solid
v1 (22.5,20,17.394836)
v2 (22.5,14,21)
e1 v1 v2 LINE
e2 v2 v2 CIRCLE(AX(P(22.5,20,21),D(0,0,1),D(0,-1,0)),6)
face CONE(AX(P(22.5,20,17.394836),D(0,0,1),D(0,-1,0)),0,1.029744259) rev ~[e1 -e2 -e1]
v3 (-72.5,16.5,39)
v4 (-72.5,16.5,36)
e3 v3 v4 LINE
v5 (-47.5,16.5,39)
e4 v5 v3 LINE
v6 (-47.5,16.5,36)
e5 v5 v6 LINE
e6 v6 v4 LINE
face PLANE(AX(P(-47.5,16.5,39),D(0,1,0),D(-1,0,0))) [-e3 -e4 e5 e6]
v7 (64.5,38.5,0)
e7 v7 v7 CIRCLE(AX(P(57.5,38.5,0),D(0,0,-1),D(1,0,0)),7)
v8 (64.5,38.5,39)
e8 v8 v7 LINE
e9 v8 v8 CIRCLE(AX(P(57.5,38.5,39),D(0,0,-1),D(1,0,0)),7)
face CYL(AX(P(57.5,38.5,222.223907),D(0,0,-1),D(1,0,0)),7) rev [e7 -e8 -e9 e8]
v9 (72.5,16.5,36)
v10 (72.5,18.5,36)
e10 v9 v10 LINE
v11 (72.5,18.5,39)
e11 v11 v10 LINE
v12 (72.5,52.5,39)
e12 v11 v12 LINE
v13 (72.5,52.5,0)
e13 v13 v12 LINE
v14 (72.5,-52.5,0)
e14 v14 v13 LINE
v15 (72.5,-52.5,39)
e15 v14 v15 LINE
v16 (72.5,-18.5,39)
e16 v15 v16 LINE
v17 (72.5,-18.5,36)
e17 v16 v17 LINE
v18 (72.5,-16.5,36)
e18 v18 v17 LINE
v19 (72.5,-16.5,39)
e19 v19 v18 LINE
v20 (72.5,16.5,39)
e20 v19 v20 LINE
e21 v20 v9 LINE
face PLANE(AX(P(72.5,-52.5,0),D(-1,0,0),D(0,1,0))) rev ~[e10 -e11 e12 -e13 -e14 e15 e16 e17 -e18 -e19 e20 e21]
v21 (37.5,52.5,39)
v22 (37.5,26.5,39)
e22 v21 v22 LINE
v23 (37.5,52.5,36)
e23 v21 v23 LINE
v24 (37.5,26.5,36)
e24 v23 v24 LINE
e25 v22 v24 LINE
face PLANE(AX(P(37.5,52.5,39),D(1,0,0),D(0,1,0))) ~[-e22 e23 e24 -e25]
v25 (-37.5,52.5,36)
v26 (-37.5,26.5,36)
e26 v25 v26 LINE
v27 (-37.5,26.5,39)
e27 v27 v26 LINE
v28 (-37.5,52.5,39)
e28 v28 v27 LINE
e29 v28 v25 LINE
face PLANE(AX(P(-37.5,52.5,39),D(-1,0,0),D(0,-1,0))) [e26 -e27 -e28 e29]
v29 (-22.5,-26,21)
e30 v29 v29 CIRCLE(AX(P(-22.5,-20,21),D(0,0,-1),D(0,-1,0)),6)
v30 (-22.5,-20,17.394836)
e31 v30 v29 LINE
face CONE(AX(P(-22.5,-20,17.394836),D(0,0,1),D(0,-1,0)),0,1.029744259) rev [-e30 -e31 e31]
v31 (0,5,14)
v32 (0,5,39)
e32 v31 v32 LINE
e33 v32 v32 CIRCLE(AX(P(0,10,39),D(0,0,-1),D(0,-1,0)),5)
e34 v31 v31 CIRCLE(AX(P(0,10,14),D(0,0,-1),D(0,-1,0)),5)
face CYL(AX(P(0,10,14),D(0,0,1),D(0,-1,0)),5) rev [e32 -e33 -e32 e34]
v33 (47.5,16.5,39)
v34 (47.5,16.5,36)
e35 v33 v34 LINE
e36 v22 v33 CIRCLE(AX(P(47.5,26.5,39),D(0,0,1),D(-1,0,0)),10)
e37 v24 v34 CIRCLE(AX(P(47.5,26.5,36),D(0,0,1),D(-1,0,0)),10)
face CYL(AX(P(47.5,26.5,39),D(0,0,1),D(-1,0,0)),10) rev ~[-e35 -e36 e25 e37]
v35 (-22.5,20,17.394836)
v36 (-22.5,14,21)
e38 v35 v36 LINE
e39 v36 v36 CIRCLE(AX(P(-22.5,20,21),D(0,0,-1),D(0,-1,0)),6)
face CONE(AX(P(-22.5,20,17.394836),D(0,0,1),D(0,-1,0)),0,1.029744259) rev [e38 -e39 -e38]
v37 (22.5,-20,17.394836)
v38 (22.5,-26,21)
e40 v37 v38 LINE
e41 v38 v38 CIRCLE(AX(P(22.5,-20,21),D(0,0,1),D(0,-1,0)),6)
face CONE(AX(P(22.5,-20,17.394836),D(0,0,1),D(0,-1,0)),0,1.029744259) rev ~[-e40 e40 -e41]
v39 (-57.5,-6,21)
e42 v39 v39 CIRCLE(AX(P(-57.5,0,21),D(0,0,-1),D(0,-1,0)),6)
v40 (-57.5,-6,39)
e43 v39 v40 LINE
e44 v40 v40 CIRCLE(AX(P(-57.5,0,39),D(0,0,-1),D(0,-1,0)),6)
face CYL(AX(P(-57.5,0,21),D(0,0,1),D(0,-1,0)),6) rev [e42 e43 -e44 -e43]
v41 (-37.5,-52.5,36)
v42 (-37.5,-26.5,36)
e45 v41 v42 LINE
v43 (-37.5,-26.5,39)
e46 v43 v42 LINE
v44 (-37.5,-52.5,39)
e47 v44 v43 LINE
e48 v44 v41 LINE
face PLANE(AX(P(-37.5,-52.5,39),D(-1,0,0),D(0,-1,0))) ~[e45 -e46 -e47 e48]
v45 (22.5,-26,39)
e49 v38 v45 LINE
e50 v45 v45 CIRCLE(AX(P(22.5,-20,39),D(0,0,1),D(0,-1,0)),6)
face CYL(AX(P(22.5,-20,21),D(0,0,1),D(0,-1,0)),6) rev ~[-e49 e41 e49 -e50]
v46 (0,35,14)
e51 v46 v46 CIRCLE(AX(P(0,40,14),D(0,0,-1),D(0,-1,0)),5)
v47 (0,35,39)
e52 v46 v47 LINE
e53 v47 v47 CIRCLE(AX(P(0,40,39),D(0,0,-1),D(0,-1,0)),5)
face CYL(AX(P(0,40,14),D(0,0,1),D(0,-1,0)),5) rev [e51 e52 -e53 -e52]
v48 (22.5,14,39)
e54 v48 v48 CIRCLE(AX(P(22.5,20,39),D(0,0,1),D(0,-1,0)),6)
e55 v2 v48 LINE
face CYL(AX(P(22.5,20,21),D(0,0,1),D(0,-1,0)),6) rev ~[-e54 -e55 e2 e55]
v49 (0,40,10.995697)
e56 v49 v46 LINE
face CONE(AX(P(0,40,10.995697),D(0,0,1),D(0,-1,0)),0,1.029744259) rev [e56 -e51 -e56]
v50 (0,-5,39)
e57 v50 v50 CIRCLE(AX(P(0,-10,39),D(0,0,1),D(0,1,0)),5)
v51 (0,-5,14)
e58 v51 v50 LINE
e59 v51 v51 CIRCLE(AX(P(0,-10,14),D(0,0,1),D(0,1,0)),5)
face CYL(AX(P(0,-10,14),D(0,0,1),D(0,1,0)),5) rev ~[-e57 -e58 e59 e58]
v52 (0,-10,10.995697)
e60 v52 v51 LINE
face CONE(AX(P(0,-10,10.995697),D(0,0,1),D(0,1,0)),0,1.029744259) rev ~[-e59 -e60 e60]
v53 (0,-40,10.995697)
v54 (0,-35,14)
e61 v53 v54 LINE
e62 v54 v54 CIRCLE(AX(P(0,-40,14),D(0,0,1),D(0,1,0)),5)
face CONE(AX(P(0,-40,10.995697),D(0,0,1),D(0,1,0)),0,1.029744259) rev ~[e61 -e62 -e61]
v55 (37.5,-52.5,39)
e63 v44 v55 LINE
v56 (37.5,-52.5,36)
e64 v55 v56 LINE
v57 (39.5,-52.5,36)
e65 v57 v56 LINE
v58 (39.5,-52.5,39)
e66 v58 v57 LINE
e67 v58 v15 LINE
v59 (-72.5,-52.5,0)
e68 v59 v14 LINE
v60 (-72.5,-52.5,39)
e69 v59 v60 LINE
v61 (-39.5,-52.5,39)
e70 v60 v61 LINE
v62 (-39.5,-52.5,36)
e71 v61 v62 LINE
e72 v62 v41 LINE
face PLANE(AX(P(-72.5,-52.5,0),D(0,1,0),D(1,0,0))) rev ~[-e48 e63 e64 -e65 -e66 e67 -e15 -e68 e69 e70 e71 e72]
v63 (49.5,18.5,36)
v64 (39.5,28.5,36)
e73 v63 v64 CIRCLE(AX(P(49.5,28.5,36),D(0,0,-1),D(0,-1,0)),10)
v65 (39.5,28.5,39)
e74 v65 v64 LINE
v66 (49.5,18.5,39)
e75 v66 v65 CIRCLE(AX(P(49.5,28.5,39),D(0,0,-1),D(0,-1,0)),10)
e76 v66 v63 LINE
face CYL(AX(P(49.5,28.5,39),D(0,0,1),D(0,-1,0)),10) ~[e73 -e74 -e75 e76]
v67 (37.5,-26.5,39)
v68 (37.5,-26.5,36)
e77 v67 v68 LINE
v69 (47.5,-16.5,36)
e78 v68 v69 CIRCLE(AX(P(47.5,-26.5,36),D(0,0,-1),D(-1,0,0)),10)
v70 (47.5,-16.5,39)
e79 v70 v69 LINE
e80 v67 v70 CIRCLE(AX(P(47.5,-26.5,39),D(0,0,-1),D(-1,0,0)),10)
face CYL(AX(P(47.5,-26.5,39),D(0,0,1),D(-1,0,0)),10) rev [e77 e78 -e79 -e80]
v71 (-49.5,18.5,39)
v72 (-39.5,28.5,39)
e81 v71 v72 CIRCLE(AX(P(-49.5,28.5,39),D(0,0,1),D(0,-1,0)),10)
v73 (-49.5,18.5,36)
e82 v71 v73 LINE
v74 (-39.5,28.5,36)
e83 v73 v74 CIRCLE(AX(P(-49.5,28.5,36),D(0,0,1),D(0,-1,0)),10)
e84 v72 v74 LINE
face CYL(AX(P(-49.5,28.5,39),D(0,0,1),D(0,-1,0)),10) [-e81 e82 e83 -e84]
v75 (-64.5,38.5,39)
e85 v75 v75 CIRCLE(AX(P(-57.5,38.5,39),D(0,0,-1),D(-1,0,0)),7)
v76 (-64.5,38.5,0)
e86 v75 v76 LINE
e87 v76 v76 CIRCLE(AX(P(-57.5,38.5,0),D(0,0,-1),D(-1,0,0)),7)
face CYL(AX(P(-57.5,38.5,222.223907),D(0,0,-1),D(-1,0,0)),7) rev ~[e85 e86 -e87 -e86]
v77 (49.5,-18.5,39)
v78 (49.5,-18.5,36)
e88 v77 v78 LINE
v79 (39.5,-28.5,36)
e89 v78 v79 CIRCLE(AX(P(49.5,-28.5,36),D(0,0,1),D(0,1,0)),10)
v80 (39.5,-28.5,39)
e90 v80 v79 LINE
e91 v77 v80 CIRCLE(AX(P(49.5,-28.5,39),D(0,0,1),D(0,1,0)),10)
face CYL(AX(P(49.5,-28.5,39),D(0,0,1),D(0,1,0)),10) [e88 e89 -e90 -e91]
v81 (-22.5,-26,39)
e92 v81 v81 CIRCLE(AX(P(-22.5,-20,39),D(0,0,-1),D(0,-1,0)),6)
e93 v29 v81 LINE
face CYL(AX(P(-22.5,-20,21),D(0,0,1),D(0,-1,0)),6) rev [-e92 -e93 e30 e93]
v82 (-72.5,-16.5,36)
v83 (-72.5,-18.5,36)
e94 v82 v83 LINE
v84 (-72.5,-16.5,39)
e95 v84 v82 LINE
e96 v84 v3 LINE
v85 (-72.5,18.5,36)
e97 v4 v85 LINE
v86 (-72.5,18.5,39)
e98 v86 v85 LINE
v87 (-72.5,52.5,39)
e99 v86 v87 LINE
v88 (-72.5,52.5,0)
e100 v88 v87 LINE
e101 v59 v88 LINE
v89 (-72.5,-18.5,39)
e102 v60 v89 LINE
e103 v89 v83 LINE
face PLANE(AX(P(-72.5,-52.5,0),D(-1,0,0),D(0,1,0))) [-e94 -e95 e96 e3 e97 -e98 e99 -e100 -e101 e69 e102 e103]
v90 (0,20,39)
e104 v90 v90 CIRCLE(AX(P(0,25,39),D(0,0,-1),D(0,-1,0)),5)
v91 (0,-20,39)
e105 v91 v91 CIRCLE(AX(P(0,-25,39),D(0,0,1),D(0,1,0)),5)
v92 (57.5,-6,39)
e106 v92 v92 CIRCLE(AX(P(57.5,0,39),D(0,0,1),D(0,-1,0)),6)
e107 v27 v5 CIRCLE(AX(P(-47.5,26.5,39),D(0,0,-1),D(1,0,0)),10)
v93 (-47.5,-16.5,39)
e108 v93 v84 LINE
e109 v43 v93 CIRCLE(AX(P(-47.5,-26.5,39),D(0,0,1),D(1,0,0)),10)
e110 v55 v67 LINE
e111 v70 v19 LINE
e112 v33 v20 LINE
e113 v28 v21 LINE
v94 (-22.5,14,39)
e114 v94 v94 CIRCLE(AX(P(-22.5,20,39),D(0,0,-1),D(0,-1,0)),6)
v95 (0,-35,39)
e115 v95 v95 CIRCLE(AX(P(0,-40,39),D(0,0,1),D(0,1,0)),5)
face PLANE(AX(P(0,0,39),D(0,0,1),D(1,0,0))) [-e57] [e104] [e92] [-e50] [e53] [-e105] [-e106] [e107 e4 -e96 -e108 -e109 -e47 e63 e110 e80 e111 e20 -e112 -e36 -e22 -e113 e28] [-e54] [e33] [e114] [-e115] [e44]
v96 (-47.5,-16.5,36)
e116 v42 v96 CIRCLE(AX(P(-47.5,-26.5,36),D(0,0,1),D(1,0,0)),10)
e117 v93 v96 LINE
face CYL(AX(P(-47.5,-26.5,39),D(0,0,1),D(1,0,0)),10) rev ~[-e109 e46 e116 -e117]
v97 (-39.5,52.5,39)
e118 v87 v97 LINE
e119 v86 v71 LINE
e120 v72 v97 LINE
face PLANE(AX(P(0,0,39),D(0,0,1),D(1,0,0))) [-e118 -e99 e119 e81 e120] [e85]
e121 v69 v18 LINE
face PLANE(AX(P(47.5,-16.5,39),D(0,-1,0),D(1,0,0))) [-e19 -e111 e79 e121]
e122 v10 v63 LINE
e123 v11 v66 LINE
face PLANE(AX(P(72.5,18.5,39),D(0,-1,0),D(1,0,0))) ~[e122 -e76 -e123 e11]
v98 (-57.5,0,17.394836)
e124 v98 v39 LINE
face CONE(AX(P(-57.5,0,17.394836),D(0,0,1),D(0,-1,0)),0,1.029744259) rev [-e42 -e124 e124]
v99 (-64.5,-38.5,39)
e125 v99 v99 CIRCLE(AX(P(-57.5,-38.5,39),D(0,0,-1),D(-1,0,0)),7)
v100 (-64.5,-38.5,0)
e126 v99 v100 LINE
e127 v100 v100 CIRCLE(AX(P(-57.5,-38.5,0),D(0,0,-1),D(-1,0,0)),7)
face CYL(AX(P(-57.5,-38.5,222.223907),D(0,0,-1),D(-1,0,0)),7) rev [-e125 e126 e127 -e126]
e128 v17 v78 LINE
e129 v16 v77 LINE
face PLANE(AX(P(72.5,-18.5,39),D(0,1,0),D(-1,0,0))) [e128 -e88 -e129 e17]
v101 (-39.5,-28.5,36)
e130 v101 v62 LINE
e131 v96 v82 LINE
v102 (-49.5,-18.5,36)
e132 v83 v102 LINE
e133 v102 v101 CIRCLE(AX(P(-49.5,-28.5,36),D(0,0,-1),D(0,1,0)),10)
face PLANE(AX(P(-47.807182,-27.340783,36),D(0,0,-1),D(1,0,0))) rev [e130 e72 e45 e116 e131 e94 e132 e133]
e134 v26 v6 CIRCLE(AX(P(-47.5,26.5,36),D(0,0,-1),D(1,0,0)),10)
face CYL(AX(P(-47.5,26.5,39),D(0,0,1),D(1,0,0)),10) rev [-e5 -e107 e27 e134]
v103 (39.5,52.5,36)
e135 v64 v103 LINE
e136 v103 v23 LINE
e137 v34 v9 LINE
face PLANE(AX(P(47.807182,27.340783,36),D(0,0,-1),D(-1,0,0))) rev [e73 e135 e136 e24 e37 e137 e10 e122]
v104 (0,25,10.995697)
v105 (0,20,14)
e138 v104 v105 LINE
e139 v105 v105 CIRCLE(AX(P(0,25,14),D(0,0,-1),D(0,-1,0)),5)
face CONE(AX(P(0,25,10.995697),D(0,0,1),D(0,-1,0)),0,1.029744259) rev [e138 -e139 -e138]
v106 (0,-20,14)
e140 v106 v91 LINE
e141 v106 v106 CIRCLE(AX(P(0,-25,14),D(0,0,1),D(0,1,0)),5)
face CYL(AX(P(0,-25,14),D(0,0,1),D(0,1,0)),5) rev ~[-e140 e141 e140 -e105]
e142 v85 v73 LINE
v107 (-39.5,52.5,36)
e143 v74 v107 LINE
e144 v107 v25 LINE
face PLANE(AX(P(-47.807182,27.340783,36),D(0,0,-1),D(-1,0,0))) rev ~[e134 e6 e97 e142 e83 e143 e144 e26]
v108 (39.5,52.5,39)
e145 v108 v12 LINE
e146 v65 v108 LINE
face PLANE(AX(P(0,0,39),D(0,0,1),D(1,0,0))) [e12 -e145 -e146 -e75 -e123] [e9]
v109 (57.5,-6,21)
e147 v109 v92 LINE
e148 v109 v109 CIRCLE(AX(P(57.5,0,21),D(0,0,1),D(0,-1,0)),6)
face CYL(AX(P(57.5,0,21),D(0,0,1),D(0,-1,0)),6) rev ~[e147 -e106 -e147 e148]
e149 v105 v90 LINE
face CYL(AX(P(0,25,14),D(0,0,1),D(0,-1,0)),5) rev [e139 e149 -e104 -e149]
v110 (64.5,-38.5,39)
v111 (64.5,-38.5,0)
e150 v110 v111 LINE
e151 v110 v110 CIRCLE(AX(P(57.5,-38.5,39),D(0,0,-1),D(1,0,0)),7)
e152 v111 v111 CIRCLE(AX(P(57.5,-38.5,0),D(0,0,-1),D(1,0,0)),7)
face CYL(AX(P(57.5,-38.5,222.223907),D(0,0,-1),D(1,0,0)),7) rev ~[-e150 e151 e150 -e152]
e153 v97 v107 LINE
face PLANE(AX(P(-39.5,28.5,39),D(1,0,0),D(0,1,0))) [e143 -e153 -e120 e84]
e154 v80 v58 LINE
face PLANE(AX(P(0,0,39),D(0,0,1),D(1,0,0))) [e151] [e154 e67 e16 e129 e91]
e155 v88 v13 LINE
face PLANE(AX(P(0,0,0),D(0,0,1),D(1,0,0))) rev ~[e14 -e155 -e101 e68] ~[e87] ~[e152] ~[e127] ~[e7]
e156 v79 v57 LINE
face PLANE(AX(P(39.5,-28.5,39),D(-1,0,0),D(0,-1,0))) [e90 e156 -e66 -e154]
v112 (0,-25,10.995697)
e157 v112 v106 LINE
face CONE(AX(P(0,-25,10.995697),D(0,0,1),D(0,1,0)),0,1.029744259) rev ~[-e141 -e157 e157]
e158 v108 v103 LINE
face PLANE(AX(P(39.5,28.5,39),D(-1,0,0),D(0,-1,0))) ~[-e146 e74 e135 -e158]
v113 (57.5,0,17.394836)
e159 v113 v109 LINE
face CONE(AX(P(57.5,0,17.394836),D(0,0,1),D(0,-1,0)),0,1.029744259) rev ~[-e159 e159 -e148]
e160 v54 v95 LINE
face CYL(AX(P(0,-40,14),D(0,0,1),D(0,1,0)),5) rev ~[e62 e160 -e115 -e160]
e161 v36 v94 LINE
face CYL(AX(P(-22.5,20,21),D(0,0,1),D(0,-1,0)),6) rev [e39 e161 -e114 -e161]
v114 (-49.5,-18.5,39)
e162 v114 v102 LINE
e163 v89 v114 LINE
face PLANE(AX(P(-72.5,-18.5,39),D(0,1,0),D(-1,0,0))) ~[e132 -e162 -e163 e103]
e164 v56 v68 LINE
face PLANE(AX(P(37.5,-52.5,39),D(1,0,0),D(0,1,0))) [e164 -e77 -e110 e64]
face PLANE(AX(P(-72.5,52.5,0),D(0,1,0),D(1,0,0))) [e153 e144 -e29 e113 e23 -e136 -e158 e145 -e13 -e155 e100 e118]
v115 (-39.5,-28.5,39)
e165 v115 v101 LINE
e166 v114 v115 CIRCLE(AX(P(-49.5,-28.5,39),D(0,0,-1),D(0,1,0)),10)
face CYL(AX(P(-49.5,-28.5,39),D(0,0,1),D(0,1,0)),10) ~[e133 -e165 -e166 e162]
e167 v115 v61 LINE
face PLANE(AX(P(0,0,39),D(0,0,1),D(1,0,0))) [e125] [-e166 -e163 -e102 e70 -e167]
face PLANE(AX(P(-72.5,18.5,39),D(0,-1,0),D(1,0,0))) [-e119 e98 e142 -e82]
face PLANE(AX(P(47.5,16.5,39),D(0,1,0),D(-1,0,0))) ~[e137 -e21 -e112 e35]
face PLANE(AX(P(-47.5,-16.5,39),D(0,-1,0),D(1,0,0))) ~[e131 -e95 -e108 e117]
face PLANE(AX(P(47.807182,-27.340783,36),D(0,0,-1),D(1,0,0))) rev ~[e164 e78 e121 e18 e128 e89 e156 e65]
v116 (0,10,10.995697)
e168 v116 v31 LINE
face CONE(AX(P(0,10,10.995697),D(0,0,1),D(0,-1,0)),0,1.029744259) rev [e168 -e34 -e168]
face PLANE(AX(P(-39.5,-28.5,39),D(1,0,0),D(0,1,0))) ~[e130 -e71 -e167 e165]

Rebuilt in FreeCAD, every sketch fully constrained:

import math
import FreeCAD as App
import Part
import Sketcher
from FreeCAD import Vector
Q = App.Units.Quantity

doc = App.newDocument("Part")
body = doc.addObject("PartDesign::Body", "Body")

# Sketch on XY plane
sketch1 = body.newObject("Sketcher::SketchObject", "Sketch")
sketch1.AttachmentSupport = (doc.getObject("XY_Plane"), [""])
sketch1.MapMode = "FlatFace"
sketch1.addGeometry(Part.LineSegment(Vector(-72, 52, 0), Vector(-72, -52, 0)), False)
sketch1.addGeometry(Part.LineSegment(Vector(-72, -52, 0), Vector(72, -52, 0)), False)
sketch1.addGeometry(Part.LineSegment(Vector(72, -52, 0), Vector(72, 52, 0)), False)
sketch1.addGeometry(Part.LineSegment(Vector(72, 52, 0), Vector(-72, 52, 0)), False)
sketch1.addConstraint(Sketcher.Constraint("Coincident", 0, 2, 1, 1))
sketch1.addConstraint(Sketcher.Constraint("Coincident", 1, 2, 2, 1))
sketch1.addConstraint(Sketcher.Constraint("Coincident", 2, 2, 3, 1))
sketch1.addConstraint(Sketcher.Constraint("Coincident", 3, 2, 0, 1))
sketch1.addConstraint(Sketcher.Constraint("Vertical", 0))
sketch1.addConstraint(Sketcher.Constraint("Horizontal", 1))
sketch1.addConstraint(Sketcher.Constraint("Vertical", 2))
sketch1.addConstraint(Sketcher.Constraint("Horizontal", 3))
sketch1.addConstraint(Sketcher.Constraint("Symmetric", 0, 2, 2, 2, -1, 1))
sketch1.addConstraint(Sketcher.Constraint("DistanceX", 1, 1, 1, 2, 145.0))
sketch1.addConstraint(Sketcher.Constraint("DistanceY", 0, 2, 0, 1, 105.0))
pad1 = body.newObject("PartDesign::Pad", "Pad")
pad1.Profile = sketch1
pad1.Length = 39

# Sketch on XY plane
sketch2 = body.newObject("Sketcher::SketchObject", "Sketch001")
sketch2.AttachmentSupport = (doc.getObject("XY_Plane"), [""])
sketch2.MapMode = "FlatFace"
sketch2.AttachmentOffset = App.Placement(Vector(0, 0, 39), App.Rotation())
sketch2.addGeometry(Part.Circle(Vector(-58, 38, 0), Vector(0, 0, 1), 7), False)
sketch2.addConstraint(Sketcher.Constraint("Diameter", 0, 14.0))
sketch2.addConstraint(Sketcher.Constraint("DistanceX", 0, 3, -1, 1, 57.5))
sketch2.addConstraint(Sketcher.Constraint("DistanceY", -1, 1, 0, 3, 38.5))
doc.recompute()
hole = body.newObject("PartDesign::Hole", "Hole")
hole.Profile = sketch2
hole.ThreadType = "None"
hole.Diameter = 14
hole.DepthType = "ThroughAll"
doc.recompute()

mirrored = body.newObject("PartDesign::Mirrored", "Mirrored")
mirrored.Originals = [hole]
mirrored.MirrorPlane = (doc.getObject("XZ_Plane"), [""])
body.Tip = mirrored
doc.recompute()

mirrored2 = body.newObject("PartDesign::Mirrored", "Mirrored001")
mirrored2.Originals = [hole]
mirrored2.MirrorPlane = (doc.getObject("YZ_Plane"), [""])
body.Tip = mirrored2

# Sketch on XY plane
sketch3 = body.newObject("Sketcher::SketchObject", "Sketch002")
sketch3.AttachmentSupport = (doc.getObject("XY_Plane"), [""])
sketch3.MapMode = "FlatFace"
sketch3.AttachmentOffset = App.Placement(Vector(0, 0, 39), App.Rotation())
sketch3.addGeometry(Part.Circle(Vector(58, -38, 0), Vector(0, 0, 1), 7), False)
sketch3.addConstraint(Sketcher.Constraint("Diameter", 0, 14.0))
sketch3.addConstraint(Sketcher.Constraint("DistanceX", -1, 1, 0, 3, 57.5))
sketch3.addConstraint(Sketcher.Constraint("DistanceY", 0, 3, -1, 1, 38.5))
doc.recompute()
hole2 = body.newObject("PartDesign::Hole", "Hole001")
hole2.Profile = sketch3
hole2.ThreadType = "None"
hole2.Diameter = 14
hole2.DepthType = "ThroughAll"

# Sketch on YZ plane
sketch4 = body.newObject("Sketcher::SketchObject", "Sketch003")
sketch4.AttachmentSupport = (doc.getObject("YZ_Plane"), [""])
sketch4.MapMode = "FlatFace"
sketch4.addGeometry(Part.LineSegment(Vector(40, 11, 0), Vector(40, 39, 0)), False)
sketch4.addGeometry(Part.LineSegment(Vector(40, 39, 0), Vector(35, 39, 0)), False)
sketch4.addGeometry(Part.LineSegment(Vector(35, 39, 0), Vector(35, 14, 0)), False)
sketch4.addGeometry(Part.LineSegment(Vector(35, 14, 0), Vector(40, 11, 0)), False)
sketch4.addGeometry(Part.LineSegment(Vector(40, 39, 0), Vector(40, 11, 0)), True)  # axis
sketch4.addConstraint(Sketcher.Constraint("Coincident", 0, 2, 1, 1))
sketch4.addConstraint(Sketcher.Constraint("Coincident", 1, 2, 2, 1))
sketch4.addConstraint(Sketcher.Constraint("Coincident", 2, 2, 3, 1))
sketch4.addConstraint(Sketcher.Constraint("Coincident", 3, 2, 0, 1))
sketch4.addConstraint(Sketcher.Constraint("Vertical", 0))
sketch4.addConstraint(Sketcher.Constraint("Horizontal", 1))
sketch4.addConstraint(Sketcher.Constraint("Vertical", 2))
sketch4.addConstraint(Sketcher.Constraint("Vertical", 4))
sketch4.addConstraint(Sketcher.Constraint("Coincident", 4, 1, 0, 2))
sketch4.addConstraint(Sketcher.Constraint("Equal", 0, 4))
sketch4.addConstraint(Sketcher.Constraint("DistanceX", 1, 2, 1, 1, 5.0))
sketch4.addConstraint(Sketcher.Constraint("DistanceY", 2, 2, 2, 1, 25.0))
sketch4.addConstraint(Sketcher.Constraint("Angle", 3, Q("-31 deg")))
sketch4.addConstraint(Sketcher.Constraint("DistanceX", -1, 1, 0, 2, 40.0))
sketch4.addConstraint(Sketcher.Constraint("DistanceY", -1, 1, 0, 2, 39.0))
groove = body.newObject("PartDesign::Groove", "Groove")
groove.Profile = sketch4
groove.ReferenceAxis = (sketch4, ["Axis0"])
groove.Angle = 360
doc.recompute()

linearpattern = body.newObject("PartDesign::LinearPattern", "LinearPattern")
linearpattern.Originals = [groove]
linearpattern.Direction = (doc.getObject("Y_Axis"), [""])
linearpattern.Mode = "offset"
linearpattern.Offset = 15
linearpattern.Occurrences = 2
linearpattern.Reversed = True
body.Tip = linearpattern
doc.recompute()

linearpattern2 = body.newObject("PartDesign::LinearPattern", "LinearPattern001")
linearpattern2.Originals = [groove]
linearpattern2.Direction = (doc.getObject("Y_Axis"), [""])
linearpattern2.Mode = "offset"
linearpattern2.Offset = 30
linearpattern2.Occurrences = 2
linearpattern2.Reversed = True
body.Tip = linearpattern2
doc.recompute()

mirrored3 = body.newObject("PartDesign::Mirrored", "Mirrored002")
mirrored3.Originals = [groove]
mirrored3.MirrorPlane = (doc.getObject("XZ_Plane"), [""])
body.Tip = mirrored3

# Sketch on YZ plane
sketch5 = body.newObject("Sketcher::SketchObject", "Sketch004")
sketch5.AttachmentSupport = (doc.getObject("YZ_Plane"), [""])
sketch5.MapMode = "FlatFace"
sketch5.addGeometry(Part.LineSegment(Vector(-25, 39, 0), Vector(-25, 11, 0)), False)
sketch5.addGeometry(Part.LineSegment(Vector(-25, 11, 0), Vector(-20, 14, 0)), False)
sketch5.addGeometry(Part.LineSegment(Vector(-20, 14, 0), Vector(-20, 39, 0)), False)
sketch5.addGeometry(Part.LineSegment(Vector(-20, 39, 0), Vector(-25, 39, 0)), False)
sketch5.addGeometry(Part.LineSegment(Vector(-25, 11, 0), Vector(-25, 39, 0)), True)  # axis
sketch5.addConstraint(Sketcher.Constraint("Coincident", 0, 2, 1, 1))
sketch5.addConstraint(Sketcher.Constraint("Coincident", 1, 2, 2, 1))
sketch5.addConstraint(Sketcher.Constraint("Coincident", 2, 2, 3, 1))
sketch5.addConstraint(Sketcher.Constraint("Coincident", 3, 2, 0, 1))
sketch5.addConstraint(Sketcher.Constraint("Vertical", 0))
sketch5.addConstraint(Sketcher.Constraint("Vertical", 2))
sketch5.addConstraint(Sketcher.Constraint("Horizontal", 3))
sketch5.addConstraint(Sketcher.Constraint("Vertical", 4))
sketch5.addConstraint(Sketcher.Constraint("Coincident", 4, 1, 0, 2))
sketch5.addConstraint(Sketcher.Constraint("Horizontal", 2, 2, 4, 2))
sketch5.addConstraint(Sketcher.Constraint("DistanceX", 3, 2, 3, 1, 5.0))
sketch5.addConstraint(Sketcher.Constraint("DistanceY", 2, 1, 2, 2, 25.0))
sketch5.addConstraint(Sketcher.Constraint("Angle", 1, Q("31 deg")))
sketch5.addConstraint(Sketcher.Constraint("DistanceX", 0, 2, -1, 1, 25.0))
sketch5.addConstraint(Sketcher.Constraint("DistanceY", -1, 1, 1, 2, 14.0))
groove2 = body.newObject("PartDesign::Groove", "Groove001")
groove2.Profile = sketch5
groove2.ReferenceAxis = (sketch5, ["Axis0"])
groove2.Angle = 360

# Sketch on YZ plane
sketch6 = body.newObject("Sketcher::SketchObject", "Sketch005")
sketch6.AttachmentSupport = (doc.getObject("YZ_Plane"), [""])
sketch6.MapMode = "FlatFace"
sketch6.addGeometry(Part.LineSegment(Vector(-10, 39, 0), Vector(-10, 11, 0)), False)
sketch6.addGeometry(Part.LineSegment(Vector(-10, 11, 0), Vector(-5, 14, 0)), False)
sketch6.addGeometry(Part.LineSegment(Vector(-5, 14, 0), Vector(-5, 39, 0)), False)
sketch6.addGeometry(Part.LineSegment(Vector(-5, 39, 0), Vector(-10, 39, 0)), False)
sketch6.addGeometry(Part.LineSegment(Vector(-10, 11, 0), Vector(-10, 39, 0)), True)  # axis
sketch6.addConstraint(Sketcher.Constraint("Coincident", 0, 2, 1, 1))
sketch6.addConstraint(Sketcher.Constraint("Coincident", 1, 2, 2, 1))
sketch6.addConstraint(Sketcher.Constraint("Coincident", 2, 2, 3, 1))
sketch6.addConstraint(Sketcher.Constraint("Coincident", 3, 2, 0, 1))
sketch6.addConstraint(Sketcher.Constraint("Vertical", 0))
sketch6.addConstraint(Sketcher.Constraint("Vertical", 2))
sketch6.addConstraint(Sketcher.Constraint("Horizontal", 3))
sketch6.addConstraint(Sketcher.Constraint("Vertical", 4))
sketch6.addConstraint(Sketcher.Constraint("Coincident", 4, 1, 0, 2))
sketch6.addConstraint(Sketcher.Constraint("Horizontal", 2, 2, 4, 2))
sketch6.addConstraint(Sketcher.Constraint("DistanceX", 3, 2, 3, 1, 5.0))
sketch6.addConstraint(Sketcher.Constraint("DistanceY", 2, 1, 2, 2, 25.0))
sketch6.addConstraint(Sketcher.Constraint("Angle", 1, Q("31 deg")))
sketch6.addConstraint(Sketcher.Constraint("DistanceX", 0, 2, -1, 1, 10.0))
sketch6.addConstraint(Sketcher.Constraint("DistanceY", -1, 1, 1, 2, 14.0))
groove3 = body.newObject("PartDesign::Groove", "Groove002")
groove3.Profile = sketch6
groove3.ReferenceAxis = (sketch6, ["Axis0"])
groove3.Angle = 360

# Sketch on YZ plane
sketch7 = body.newObject("Sketcher::SketchObject", "Sketch006")
sketch7.AttachmentSupport = (doc.getObject("YZ_Plane"), [""])
sketch7.MapMode = "FlatFace"
sketch7.AttachmentOffset = App.Placement(Vector(0, 0, -57.5), App.Rotation())
sketch7.addGeometry(Part.LineSegment(Vector(0, 17, 0), Vector(0, 39, 0)), False)
sketch7.addGeometry(Part.LineSegment(Vector(0, 39, 0), Vector(-6, 39, 0)), False)
sketch7.addGeometry(Part.LineSegment(Vector(-6, 39, 0), Vector(-6, 21, 0)), False)
sketch7.addGeometry(Part.LineSegment(Vector(-6, 21, 0), Vector(0, 17, 0)), False)
sketch7.addConstraint(Sketcher.Constraint("Coincident", 0, 2, 1, 1))
sketch7.addConstraint(Sketcher.Constraint("Coincident", 1, 2, 2, 1))
sketch7.addConstraint(Sketcher.Constraint("Coincident", 2, 2, 3, 1))
sketch7.addConstraint(Sketcher.Constraint("Coincident", 3, 2, 0, 1))
sketch7.addConstraint(Sketcher.Constraint("Vertical", 0))
sketch7.addConstraint(Sketcher.Constraint("Horizontal", 1))
sketch7.addConstraint(Sketcher.Constraint("Vertical", 2))
sketch7.addConstraint(Sketcher.Constraint("PointOnObject", 0, 2, -2))
sketch7.addConstraint(Sketcher.Constraint("DistanceX", 1, 2, 1, 1, 6.0))
sketch7.addConstraint(Sketcher.Constraint("DistanceY", 2, 2, 2, 1, 18.0))
sketch7.addConstraint(Sketcher.Constraint("Angle", 3, Q("-31 deg")))
sketch7.addConstraint(Sketcher.Constraint("DistanceY", -1, 1, 0, 2, 39.0))
groove4 = body.newObject("PartDesign::Groove", "Groove003")
groove4.Profile = sketch7
groove4.ReferenceAxis = (sketch7, ["V_Axis"])
groove4.Angle = 360
doc.recompute()

datumline = body.newObject("PartDesign::Line", "DatumLine")
datumline.Placement = App.Placement(Vector(0, 0, 0), App.Rotation(Vector(0, 0, 1), Vector(0.868243142, 0.496138938, 0)))
linearpattern3 = body.newObject("PartDesign::LinearPattern", "LinearPattern002")
linearpattern3.Originals = [groove4]
linearpattern3.Direction = (datumline, [""])
linearpattern3.Mode = "offset"
linearpattern3.Offset = 40.311289
linearpattern3.Occurrences = 2
body.Tip = linearpattern3
doc.recompute()

datumline2 = body.newObject("PartDesign::Line", "DatumLine001")
datumline2.Placement = App.Placement(Vector(0, 0, 0), App.Rotation(Vector(0, 0, 1), Vector(0.868243142, -0.496138938, 0)))
linearpattern4 = body.newObject("PartDesign::LinearPattern", "LinearPattern003")
linearpattern4.Originals = [groove4]
linearpattern4.Direction = (datumline2, [""])
linearpattern4.Mode = "offset"
linearpattern4.Offset = 40.311289
linearpattern4.Occurrences = 2
body.Tip = linearpattern4
doc.recompute()

mirrored4 = body.newObject("PartDesign::Mirrored", "Mirrored003")
mirrored4.Originals = [groove4]
mirrored4.MirrorPlane = (doc.getObject("YZ_Plane"), [""])
body.Tip = mirrored4

# Sketch on YZ plane
sketch8 = body.newObject("Sketcher::SketchObject", "Sketch007")
sketch8.AttachmentSupport = (doc.getObject("YZ_Plane"), [""])
sketch8.MapMode = "FlatFace"
sketch8.AttachmentOffset = App.Placement(Vector(0, 0, 22.5), App.Rotation())
sketch8.addGeometry(Part.LineSegment(Vector(20, 39, 0), Vector(20, 17, 0)), False)
sketch8.addGeometry(Part.LineSegment(Vector(20, 17, 0), Vector(14, 21, 0)), False)
sketch8.addGeometry(Part.LineSegment(Vector(14, 21, 0), Vector(14, 39, 0)), False)
sketch8.addGeometry(Part.LineSegment(Vector(14, 39, 0), Vector(20, 39, 0)), False)
sketch8.addGeometry(Part.LineSegment(Vector(20, 17, 0), Vector(20, 39, 0)), True)  # axis
sketch8.addConstraint(Sketcher.Constraint("Coincident", 0, 2, 1, 1))
sketch8.addConstraint(Sketcher.Constraint("Coincident", 1, 2, 2, 1))
sketch8.addConstraint(Sketcher.Constraint("Coincident", 2, 2, 3, 1))
sketch8.addConstraint(Sketcher.Constraint("Coincident", 3, 2, 0, 1))
sketch8.addConstraint(Sketcher.Constraint("Vertical", 0))
sketch8.addConstraint(Sketcher.Constraint("Vertical", 2))
sketch8.addConstraint(Sketcher.Constraint("Horizontal", 3))
sketch8.addConstraint(Sketcher.Constraint("Vertical", 4))
sketch8.addConstraint(Sketcher.Constraint("Coincident", 4, 1, 0, 2))
sketch8.addConstraint(Sketcher.Constraint("Horizontal", 2, 2, 4, 2))
sketch8.addConstraint(Sketcher.Constraint("DistanceX", 3, 1, 3, 2, 6.0))
sketch8.addConstraint(Sketcher.Constraint("DistanceY", 2, 1, 2, 2, 18.0))
sketch8.addConstraint(Sketcher.Constraint("Angle", 1, Q("149 deg")))
sketch8.addConstraint(Sketcher.Constraint("DistanceX", -1, 1, 0, 2, 20.0))
sketch8.addConstraint(Sketcher.Constraint("DistanceY", -1, 1, 1, 2, 21.0))
groove5 = body.newObject("PartDesign::Groove", "Groove004")
groove5.Profile = sketch8
groove5.ReferenceAxis = (sketch8, ["Axis0"])
groove5.Angle = 360

# Sketch on YZ plane
sketch9 = body.newObject("Sketcher::SketchObject", "Sketch008")
sketch9.AttachmentSupport = (doc.getObject("YZ_Plane"), [""])
sketch9.MapMode = "FlatFace"
sketch9.AttachmentOffset = App.Placement(Vector(0, 0, 22.5), App.Rotation())
sketch9.addGeometry(Part.LineSegment(Vector(-20, 39, 0), Vector(-20, 17.394836, 0)), False)
sketch9.addGeometry(Part.LineSegment(Vector(-20, 17.394836, 0), Vector(-26, 21, 0)), False)
sketch9.addGeometry(Part.LineSegment(Vector(-26, 21, 0), Vector(-26, 39, 0)), False)
sketch9.addGeometry(Part.LineSegment(Vector(-26, 39, 0), Vector(-20, 39, 0)), False)
sketch9.addGeometry(Part.LineSegment(Vector(-20, 17.394836, 0), Vector(-20, 39, 0)), True)  # axis
sketch9.addConstraint(Sketcher.Constraint("Coincident", 0, 2, 1, 1))
sketch9.addConstraint(Sketcher.Constraint("Coincident", 1, 2, 2, 1))
sketch9.addConstraint(Sketcher.Constraint("Coincident", 2, 2, 3, 1))
sketch9.addConstraint(Sketcher.Constraint("Coincident", 3, 2, 0, 1))
sketch9.addConstraint(Sketcher.Constraint("Vertical", 0))
sketch9.addConstraint(Sketcher.Constraint("Vertical", 2))
sketch9.addConstraint(Sketcher.Constraint("Horizontal", 3))
sketch9.addConstraint(Sketcher.Constraint("Vertical", 4))
sketch9.addConstraint(Sketcher.Constraint("Coincident", 4, 1, 0, 2))
sketch9.addConstraint(Sketcher.Constraint("Horizontal", 2, 2, 4, 2))
sketch9.addConstraint(Sketcher.Constraint("DistanceX", 3, 1, 3, 2, 6.0))
sketch9.addConstraint(Sketcher.Constraint("DistanceY", 2, 1, 2, 2, 18.0))
sketch9.addConstraint(Sketcher.Constraint("Angle", 1, Q("149 deg")))
sketch9.addConstraint(Sketcher.Constraint("DistanceX", 0, 2, -1, 1, 20.0))
sketch9.addConstraint(Sketcher.Constraint("DistanceY", -1, 1, 1, 2, 21.0))
groove6 = body.newObject("PartDesign::Groove", "Groove005")
groove6.Profile = sketch9
groove6.ReferenceAxis = (sketch9, ["Axis0"])
groove6.Angle = 360

# Sketch on XY plane
sketch10 = body.newObject("Sketcher::SketchObject", "Sketch009")
sketch10.AttachmentSupport = (doc.getObject("XY_Plane"), [""])
sketch10.MapMode = "FlatFace"
sketch10.AttachmentOffset = App.Placement(Vector(0, 0, 39), App.Rotation())
sketch10.addGeometry(Part.LineSegment(Vector(-37.5, 26.5, 0), Vector(-37.5, 52.5, 0)), False)
sketch10.addGeometry(Part.LineSegment(Vector(-37.5, 52.5, 0), Vector(-39.5, 52.5, 0)), False)
sketch10.addGeometry(Part.LineSegment(Vector(-39.5, 52.5, 0), Vector(-39.5, 28.5, 0)), False)
sketch10.addGeometry(Part.ArcOfCircle(Part.Circle(Vector(-49.5, 28.5, 0), Vector(0, 0, 1), 10), math.radians(-90), math.radians(0)), False)
sketch10.addGeometry(Part.LineSegment(Vector(-49.5, 18.5, 0), Vector(-72.5, 18.5, 0)), False)
sketch10.addGeometry(Part.LineSegment(Vector(-72.5, 18.5, 0), Vector(-72.5, 16.5, 0)), False)
sketch10.addGeometry(Part.LineSegment(Vector(-72.5, 16.5, 0), Vector(-47.5, 16.5, 0)), False)
sketch10.addGeometry(Part.ArcOfCircle(Part.Circle(Vector(-47.5, 26.5, 0), Vector(0, 0, 1), 10), math.radians(-90), math.radians(0)), False)
sketch10.addConstraint(Sketcher.Constraint("Coincident", 0, 2, 1, 1))
sketch10.addConstraint(Sketcher.Constraint("Coincident", 1, 2, 2, 1))
sketch10.addConstraint(Sketcher.Constraint("Tangent", 2, 2, 3, 2))
sketch10.addConstraint(Sketcher.Constraint("Tangent", 3, 1, 4, 1))
sketch10.addConstraint(Sketcher.Constraint("Coincident", 4, 2, 5, 1))
sketch10.addConstraint(Sketcher.Constraint("Coincident", 5, 2, 6, 1))
sketch10.addConstraint(Sketcher.Constraint("Tangent", 6, 2, 7, 1))
sketch10.addConstraint(Sketcher.Constraint("Tangent", 7, 2, 0, 1))
sketch10.addConstraint(Sketcher.Constraint("Vertical", 0))
sketch10.addConstraint(Sketcher.Constraint("Horizontal", 1))
sketch10.addConstraint(Sketcher.Constraint("Vertical", 2))
sketch10.addConstraint(Sketcher.Constraint("Horizontal", 4))
sketch10.addConstraint(Sketcher.Constraint("Vertical", 5))
sketch10.addConstraint(Sketcher.Constraint("Horizontal", 6))
sketch10.addConstraint(Sketcher.Constraint("Equal", 3, 7))
sketch10.addConstraint(Sketcher.Constraint("Equal", 1, 5))
sketch10.addConstraint(Sketcher.Constraint("Radius", 3, 10.0))
sketch10.addConstraint(Sketcher.Constraint("DistanceX", 1, 2, 1, 1, 2.0))
sketch10.addConstraint(Sketcher.Constraint("DistanceX", 4, 2, 4, 1, 23.0))
sketch10.addConstraint(Sketcher.Constraint("DistanceY", 0, 1, 0, 2, 26.0))
sketch10.addConstraint(Sketcher.Constraint("DistanceX", 3, 3, -1, 1, 49.5))
sketch10.addConstraint(Sketcher.Constraint("DistanceY", -1, 1, 3, 3, 28.5))
pocket1 = body.newObject("PartDesign::Pocket", "Pocket")
pocket1.Profile = sketch10
pocket1.Length = 3
doc.recompute()

mirrored5 = body.newObject("PartDesign::Mirrored", "Mirrored004")
mirrored5.Originals = [pocket1]
mirrored5.MirrorPlane = (doc.getObject("XZ_Plane"), [""])
body.Tip = mirrored5
doc.recompute()

mirrored6 = body.newObject("PartDesign::Mirrored", "Mirrored005")
mirrored6.Originals = [pocket1]
mirrored6.MirrorPlane = (doc.getObject("YZ_Plane"), [""])
body.Tip = mirrored6

# Sketch on XY plane
sketch11 = body.newObject("Sketcher::SketchObject", "Sketch010")
sketch11.AttachmentSupport = (doc.getObject("XY_Plane"), [""])
sketch11.MapMode = "FlatFace"
sketch11.AttachmentOffset = App.Placement(Vector(0, 0, 39), App.Rotation())
sketch11.addGeometry(Part.LineSegment(Vector(37.5, -26.5, 0), Vector(37.5, -52.5, 0)), False)
sketch11.addGeometry(Part.LineSegment(Vector(37.5, -52.5, 0), Vector(39.5, -52.5, 0)), False)
sketch11.addGeometry(Part.LineSegment(Vector(39.5, -52.5, 0), Vector(39.5, -28.5, 0)), False)
sketch11.addGeometry(Part.ArcOfCircle(Part.Circle(Vector(49.5, -28.5, 0), Vector(0, 0, 1), 10), math.radians(90), math.radians(180)), False)
sketch11.addGeometry(Part.LineSegment(Vector(49.5, -18.5, 0), Vector(72.5, -18.5, 0)), False)
sketch11.addGeometry(Part.LineSegment(Vector(72.5, -18.5, 0), Vector(72.5, -16.5, 0)), False)
sketch11.addGeometry(Part.LineSegment(Vector(72.5, -16.5, 0), Vector(47.5, -16.5, 0)), False)
sketch11.addGeometry(Part.ArcOfCircle(Part.Circle(Vector(47.5, -26.5, 0), Vector(0, 0, 1), 10), math.radians(90), math.radians(180)), False)
sketch11.addConstraint(Sketcher.Constraint("Coincident", 0, 2, 1, 1))
sketch11.addConstraint(Sketcher.Constraint("Coincident", 1, 2, 2, 1))
sketch11.addConstraint(Sketcher.Constraint("Tangent", 2, 2, 3, 2))
sketch11.addConstraint(Sketcher.Constraint("Tangent", 3, 1, 4, 1))
sketch11.addConstraint(Sketcher.Constraint("Coincident", 4, 2, 5, 1))
sketch11.addConstraint(Sketcher.Constraint("Coincident", 5, 2, 6, 1))
sketch11.addConstraint(Sketcher.Constraint("Tangent", 6, 2, 7, 1))
sketch11.addConstraint(Sketcher.Constraint("Tangent", 7, 2, 0, 1))
sketch11.addConstraint(Sketcher.Constraint("Vertical", 0))
sketch11.addConstraint(Sketcher.Constraint("Horizontal", 1))
sketch11.addConstraint(Sketcher.Constraint("Vertical", 2))
sketch11.addConstraint(Sketcher.Constraint("Horizontal", 4))
sketch11.addConstraint(Sketcher.Constraint("Vertical", 5))
sketch11.addConstraint(Sketcher.Constraint("Horizontal", 6))
sketch11.addConstraint(Sketcher.Constraint("Equal", 3, 7))
sketch11.addConstraint(Sketcher.Constraint("Equal", 1, 5))
sketch11.addConstraint(Sketcher.Constraint("Radius", 3, 10.0))
sketch11.addConstraint(Sketcher.Constraint("DistanceX", 1, 1, 1, 2, 2.0))
sketch11.addConstraint(Sketcher.Constraint("DistanceX", 4, 1, 4, 2, 23.0))
sketch11.addConstraint(Sketcher.Constraint("DistanceY", 0, 2, 0, 1, 26.0))
sketch11.addConstraint(Sketcher.Constraint("DistanceX", -1, 1, 3, 3, 49.5))
sketch11.addConstraint(Sketcher.Constraint("DistanceY", 3, 3, -1, 1, 28.5))
pocket2 = body.newObject("PartDesign::Pocket", "Pocket001")
pocket2.Profile = sketch11
pocket2.Length = 3

doc.recompute()
